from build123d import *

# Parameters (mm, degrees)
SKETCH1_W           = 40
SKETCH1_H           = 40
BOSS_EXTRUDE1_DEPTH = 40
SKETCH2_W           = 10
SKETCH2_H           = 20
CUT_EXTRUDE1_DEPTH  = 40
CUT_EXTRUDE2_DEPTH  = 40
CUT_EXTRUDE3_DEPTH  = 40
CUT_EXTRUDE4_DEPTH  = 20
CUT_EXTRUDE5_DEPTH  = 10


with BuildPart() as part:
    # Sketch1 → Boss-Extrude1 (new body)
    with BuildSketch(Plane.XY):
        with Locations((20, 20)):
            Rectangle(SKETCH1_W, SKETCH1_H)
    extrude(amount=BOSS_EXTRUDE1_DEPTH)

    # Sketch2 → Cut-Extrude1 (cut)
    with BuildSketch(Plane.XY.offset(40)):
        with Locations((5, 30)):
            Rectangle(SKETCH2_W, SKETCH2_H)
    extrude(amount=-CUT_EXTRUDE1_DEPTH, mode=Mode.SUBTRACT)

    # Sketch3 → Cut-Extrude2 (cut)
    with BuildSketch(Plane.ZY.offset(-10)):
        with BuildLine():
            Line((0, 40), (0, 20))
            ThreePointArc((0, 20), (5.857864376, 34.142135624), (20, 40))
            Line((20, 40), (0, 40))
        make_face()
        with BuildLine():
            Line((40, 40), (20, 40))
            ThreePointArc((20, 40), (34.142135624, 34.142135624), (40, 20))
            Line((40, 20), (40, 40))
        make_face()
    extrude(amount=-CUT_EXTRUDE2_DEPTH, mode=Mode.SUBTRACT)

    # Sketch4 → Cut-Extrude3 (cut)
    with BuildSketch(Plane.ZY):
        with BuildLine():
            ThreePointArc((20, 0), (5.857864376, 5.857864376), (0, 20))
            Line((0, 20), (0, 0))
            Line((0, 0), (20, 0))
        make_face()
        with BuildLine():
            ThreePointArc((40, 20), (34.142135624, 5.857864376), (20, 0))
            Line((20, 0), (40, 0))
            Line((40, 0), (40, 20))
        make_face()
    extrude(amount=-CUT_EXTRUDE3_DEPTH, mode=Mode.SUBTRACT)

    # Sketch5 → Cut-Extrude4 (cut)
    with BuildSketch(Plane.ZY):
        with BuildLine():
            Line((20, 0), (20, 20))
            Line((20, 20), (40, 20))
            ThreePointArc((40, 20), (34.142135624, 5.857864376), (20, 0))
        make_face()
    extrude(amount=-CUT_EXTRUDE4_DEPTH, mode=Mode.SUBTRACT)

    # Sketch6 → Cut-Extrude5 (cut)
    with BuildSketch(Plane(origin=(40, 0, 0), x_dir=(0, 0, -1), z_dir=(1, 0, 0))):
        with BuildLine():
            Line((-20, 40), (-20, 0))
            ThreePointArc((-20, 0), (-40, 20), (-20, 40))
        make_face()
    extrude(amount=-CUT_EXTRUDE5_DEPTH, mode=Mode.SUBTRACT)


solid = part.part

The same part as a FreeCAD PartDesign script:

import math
import FreeCAD as App
import Part
import Sketcher

V = App.Vector

doc = App.newDocument("Part")
body = doc.addObject("PartDesign::Body", "Body")

# Sketch on XY plane
sketch1 = body.newObject("Sketcher::SketchObject", "Sketch")
sketch1.AttachmentSupport = (doc.getObject("XY_Plane"), [""])
sketch1.MapMode = "FlatFace"
sketch1.addGeometry(Part.LineSegment(V(0, 40, 0), V(0, 0, 0)), False)
sketch1.addGeometry(Part.LineSegment(V(0, 0, 0), V(40, 0, 0)), False)
sketch1.addGeometry(Part.LineSegment(V(40, 0, 0), V(40, 40, 0)), False)
sketch1.addGeometry(Part.LineSegment(V(40, 40, 0), V(0, 40, 0)), False)
sketch1.addConstraint(Sketcher.Constraint("Coincident", 0, 2, 1, 1))
sketch1.addConstraint(Sketcher.Constraint("Coincident", 1, 2, 2, 1))
sketch1.addConstraint(Sketcher.Constraint("Coincident", 2, 2, 3, 1))
sketch1.addConstraint(Sketcher.Constraint("Coincident", 3, 2, 0, 1))
sketch1.addConstraint(Sketcher.Constraint("Vertical", 0))
sketch1.addConstraint(Sketcher.Constraint("Horizontal", 1))
sketch1.addConstraint(Sketcher.Constraint("Vertical", 2))
sketch1.addConstraint(Sketcher.Constraint("Horizontal", 3))
sketch1.addConstraint(Sketcher.Constraint("Coincident", 0, 2, -1, 1))
sketch1.addConstraint(Sketcher.Constraint("Equal", 3, 0))
sketch1.addConstraint(Sketcher.Constraint("DistanceX", 1, 1, 1, 2, 40.0))
pad1 = body.newObject("PartDesign::Pad", "Pad")
pad1.Profile = sketch1
pad1.Length = 40

# Sketch on XY plane
sketch2 = body.newObject("Sketcher::SketchObject", "Sketch001")
sketch2.AttachmentSupport = (doc.getObject("XY_Plane"), [""])
sketch2.MapMode = "FlatFace"
sketch2.AttachmentOffset = App.Placement(V(0, 0, 40), App.Rotation())
sketch2.addGeometry(Part.LineSegment(V(0, 40, 0), V(0, 20, 0)), False)
sketch2.addGeometry(Part.LineSegment(V(0, 20, 0), V(10, 20, 0)), False)
sketch2.addGeometry(Part.LineSegment(V(10, 20, 0), V(10, 40, 0)), False)
sketch2.addGeometry(Part.LineSegment(V(10, 40, 0), V(0, 40, 0)), False)
sketch2.addConstraint(Sketcher.Constraint("Coincident", 0, 2, 1, 1))
sketch2.addConstraint(Sketcher.Constraint("Coincident", 1, 2, 2, 1))
sketch2.addConstraint(Sketcher.Constraint("Coincident", 2, 2, 3, 1))
sketch2.addConstraint(Sketcher.Constraint("Coincident", 3, 2, 0, 1))
sketch2.addConstraint(Sketcher.Constraint("Vertical", 0))
sketch2.addConstraint(Sketcher.Constraint("Horizontal", 1))
sketch2.addConstraint(Sketcher.Constraint("Vertical", 2))
sketch2.addConstraint(Sketcher.Constraint("Horizontal", 3))
sketch2.addConstraint(Sketcher.Constraint("PointOnObject", 0, 2, -2))
sketch2.addConstraint(Sketcher.Constraint("DistanceX", 1, 1, 1, 2, 10.0))
sketch2.addConstraint(Sketcher.Constraint("DistanceY", 0, 2, 0, 1, 20.0))
sketch2.addConstraint(Sketcher.Constraint("DistanceY", -1, 1, 0, 2, 20.0))
pocket1 = body.newObject("PartDesign::Pocket", "Pocket")
pocket1.Profile = sketch2
pocket1.Length = 40

# Sketch on YZ plane
sketch3 = body.newObject("Sketcher::SketchObject", "Sketch002")
sketch3.AttachmentSupport = (doc.getObject("YZ_Plane"), [""])
sketch3.MapMode = "FlatFace"
sketch3.AttachmentOffset = App.Placement(V(0, 0, 10), App.Rotation())
sketch3.addGeometry(Part.LineSegment(V(40, 0, 0), V(20, 0, 0)), False)
sketch3.addGeometry(Part.ArcOfCircle(Part.Circle(V(20, 20, 0), V(0, 0, 1), 20), math.radians(-90), math.radians(0)), False)
sketch3.addGeometry(Part.LineSegment(V(40, 20, 0), V(40, 0, 0)), False)
sketch3.addGeometry(Part.LineSegment(V(40, 40, 0), V(40, 20, 0)), False)
sketch3.addGeometry(Part.ArcOfCircle(Part.Circle(V(20, 20, 0), V(0, 0, 1), 20), math.radians(0), math.radians(90)), False)
sketch3.addGeometry(Part.LineSegment(V(20, 40, 0), V(40, 40, 0)), False)
sketch3.addConstraint(Sketcher.Constraint("Tangent", 0, 2, 1, 1))
sketch3.addConstraint(Sketcher.Constraint("Tangent", 1, 2, 2, 1))
sketch3.addConstraint(Sketcher.Constraint("Coincident", 2, 2, 0, 1))
sketch3.addConstraint(Sketcher.Constraint("Tangent", 3, 2, 4, 1))
sketch3.addConstraint(Sketcher.Constraint("Tangent", 4, 2, 5, 1))
sketch3.addConstraint(Sketcher.Constraint("Coincident", 5, 2, 3, 1))
sketch3.addConstraint(Sketcher.Constraint("Horizontal", 0))
sketch3.addConstraint(Sketcher.Constraint("Vertical", 2))
sketch3.addConstraint(Sketcher.Constraint("Vertical", 3))
sketch3.addConstraint(Sketcher.Constraint("Horizontal", 5))
sketch3.addConstraint(Sketcher.Constraint("Coincident", 4, 3, 1, 3))
sketch3.addConstraint(Sketcher.Constraint("Equal", 1, 4))
sketch3.addConstraint(Sketcher.Constraint("PointOnObject", 0, 2, -1))
sketch3.addConstraint(Sketcher.Constraint("Radius", 1, 20.0))
sketch3.addConstraint(Sketcher.Constraint("DistanceX", -1, 1, 1, 3, 20.0))
pocket2 = body.newObject("PartDesign::Pocket", "Pocket001")
pocket2.Profile = sketch3
pocket2.Length = 40
pocket2.Reversed = True

# Sketch on YZ plane
sketch4 = body.newObject("Sketcher::SketchObject", "Sketch003")
sketch4.AttachmentSupport = (doc.getObject("YZ_Plane"), [""])
sketch4.MapMode = "FlatFace"
sketch4.addGeometry(Part.ArcOfCircle(Part.Circle(V(20, 20, 0), V(0, 0, 1), 20), math.radians(180), math.radians(270)), False)
sketch4.addGeometry(Part.LineSegment(V(20, 0, 0), V(0, 0, 0)), False)
sketch4.addGeometry(Part.LineSegment(V(0, 0, 0), V(0, 20, 0)), False)
sketch4.addGeometry(Part.ArcOfCircle(Part.Circle(V(20, 20, 0), V(0, 0, 1), 20), math.radians(90), math.radians(180)), False)
sketch4.addGeometry(Part.LineSegment(V(0, 20, 0), V(0, 40, 0)), False)
sketch4.addGeometry(Part.LineSegment(V(0, 40, 0), V(20, 40, 0)), False)
sketch4.addConstraint(Sketcher.Constraint("Tangent", 0, 2, 1, 1))
sketch4.addConstraint(Sketcher.Constraint("Coincident", 1, 2, 2, 1))
sketch4.addConstraint(Sketcher.Constraint("Tangent", 2, 2, 0, 1))
sketch4.addConstraint(Sketcher.Constraint("Tangent", 3, 2, 4, 1))
sketch4.addConstraint(Sketcher.Constraint("Coincident", 4, 2, 5, 1))
sketch4.addConstraint(Sketcher.Constraint("Tangent", 5, 2, 3, 1))
sketch4.addConstraint(Sketcher.Constraint("Horizontal", 1))
sketch4.addConstraint(Sketcher.Constraint("Vertical", 2))
sketch4.addConstraint(Sketcher.Constraint("Vertical", 4))
sketch4.addConstraint(Sketcher.Constraint("Horizontal", 5))
sketch4.addConstraint(Sketcher.Constraint("Coincident", 1, 2, -1, 1))
sketch4.addConstraint(Sketcher.Constraint("Coincident", 3, 3, 0, 3))
sketch4.addConstraint(Sketcher.Constraint("Equal", 0, 3))
sketch4.addConstraint(Sketcher.Constraint("Radius", 0, 20.0))
pocket3 = body.newObject("PartDesign::Pocket", "Pocket002")
pocket3.Profile = sketch4
pocket3.Length = 40
pocket3.Reversed = True

# Sketch on YZ plane
sketch5 = body.newObject("Sketcher::SketchObject", "Sketch004")
sketch5.AttachmentSupport = (doc.getObject("YZ_Plane"), [""])
sketch5.MapMode = "FlatFace"
sketch5.addGeometry(Part.LineSegment(V(20, 20, 0), V(0, 20, 0)), False)
sketch5.addGeometry(Part.ArcOfCircle(Part.Circle(V(20, 20, 0), V(0, 0, 1), 20), math.radians(90), math.radians(180)), False)
sketch5.addGeometry(Part.LineSegment(V(20, 40, 0), V(20, 20, 0)), False)
sketch5.addConstraint(Sketcher.Constraint("Coincident", 0, 2, 1, 2))
sketch5.addConstraint(Sketcher.Constraint("Coincident", 1, 1, 2, 1))
sketch5.addConstraint(Sketcher.Constraint("Coincident", 2, 2, 0, 1))
sketch5.addConstraint(Sketcher.Constraint("Horizontal", 0))
sketch5.addConstraint(Sketcher.Constraint("Vertical", 2))
sketch5.addConstraint(Sketcher.Constraint("Coincident", 2, 2, 1, 3))
sketch5.addConstraint(Sketcher.Constraint("PointOnObject", 0, 2, -2))
sketch5.addConstraint(Sketcher.Constraint("Radius", 1, 20.0))
sketch5.addConstraint(Sketcher.Constraint("DistanceY", -1, 1, 1, 3, 20.0))
pocket4 = body.newObject("PartDesign::Pocket", "Pocket003")
pocket4.Profile = sketch5
pocket4.Length = 20
pocket4.Reversed = True

# Sketch on YZ plane
sketch6 = body.newObject("Sketcher::SketchObject", "Sketch005")
sketch6.AttachmentSupport = (doc.getObject("YZ_Plane"), [""])
sketch6.MapMode = "FlatFace"
sketch6.AttachmentOffset = App.Placement(V(0, 0, 40), App.Rotation())
sketch6.addGeometry(Part.LineSegment(V(0, 20, 0), V(40, 20, 0)), False)
sketch6.addGeometry(Part.ArcOfCircle(Part.Circle(V(20, 20, 0), V(0, 0, 1), 20), math.radians(0), math.radians(180)), False)
sketch6.addConstraint(Sketcher.Constraint("Coincident", 0, 1, 1, 2))
sketch6.addConstraint(Sketcher.Constraint("Coincident", 1, 1, 0, 2))
sketch6.addConstraint(Sketcher.Constraint("Horizontal", 0))
sketch6.addConstraint(Sketcher.Constraint("PointOnObject", 0, 1, -2))
sketch6.addConstraint(Sketcher.Constraint("Horizontal", 1, 3, 0, 1))
sketch6.addConstraint(Sketcher.Constraint("Radius", 1, 20.0))
sketch6.addConstraint(Sketcher.Constraint("DistanceY", -1, 1, 1, 3, 20.0))
pocket5 = body.newObject("PartDesign::Pocket", "Pocket004")
pocket5.Profile = sketch6
pocket5.Length = 10

doc.recompute()
